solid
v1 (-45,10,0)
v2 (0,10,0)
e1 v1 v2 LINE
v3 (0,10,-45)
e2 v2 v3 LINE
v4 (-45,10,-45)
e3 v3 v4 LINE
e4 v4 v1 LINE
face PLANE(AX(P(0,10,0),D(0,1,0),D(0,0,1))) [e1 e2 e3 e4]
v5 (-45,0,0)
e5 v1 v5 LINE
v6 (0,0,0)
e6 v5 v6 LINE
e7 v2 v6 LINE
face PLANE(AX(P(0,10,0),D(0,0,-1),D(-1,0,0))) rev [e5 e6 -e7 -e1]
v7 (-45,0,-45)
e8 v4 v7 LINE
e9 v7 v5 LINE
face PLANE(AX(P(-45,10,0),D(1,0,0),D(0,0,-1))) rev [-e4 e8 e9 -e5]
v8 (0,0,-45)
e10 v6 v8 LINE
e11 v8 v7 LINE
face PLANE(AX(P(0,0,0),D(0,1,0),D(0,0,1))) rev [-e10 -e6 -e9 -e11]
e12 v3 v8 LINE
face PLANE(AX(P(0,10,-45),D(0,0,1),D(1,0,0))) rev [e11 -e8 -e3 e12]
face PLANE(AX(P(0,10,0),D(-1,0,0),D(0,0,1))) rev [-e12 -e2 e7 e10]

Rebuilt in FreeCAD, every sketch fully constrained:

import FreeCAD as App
import Part
import Sketcher
Q = App.Units.Quantity


def add_polygon(sketch, points):
    """Adds a closed chain of lines whose ends are joined by coincident constraints."""
    first, n = sketch.GeometryCount, len(points)
    for a, b in zip(points, points[1:] + points[:1]):
        sketch.addGeometry(Part.LineSegment(App.Vector(*a, 0), App.Vector(*b, 0)), False)
    for i in range(n):
        sketch.addConstraint(Sketcher.Constraint("Coincident", first + i, 2, first + (i + 1) % n, 1))

doc = App.newDocument("Part")
body = doc.addObject("PartDesign::Body", "Body")

# Sketch on XZ plane
sketch1 = body.newObject("Sketcher::SketchObject", "Sketch")
sketch1.AttachmentSupport = (doc.getObject("XZ_Plane"), [""])
sketch1.MapMode = "FlatFace"
add_polygon(sketch1, [(-45, -45), (-45, 0), (0, 0), (0, -45)])  # lines 0-3
sketch1.addConstraint(Sketcher.Constraint("Vertical", 0))
sketch1.addConstraint(Sketcher.Constraint("Horizontal", 1))
sketch1.addConstraint(Sketcher.Constraint("Vertical", 2))
sketch1.addConstraint(Sketcher.Constraint("Horizontal", 3))
sketch1.addConstraint(Sketcher.Constraint("Coincident", 1, 2, -1, 1))
sketch1.addConstraint(Sketcher.Constraint("Equal", 3, 0))
sketch1.addConstraint(Sketcher.Constraint("DistanceX", 1, 1, 1, 2, Q("45 mm")))
pad1 = body.newObject("PartDesign::Pad", "Pad")
pad1.Profile = sketch1
pad1.Length = 10
pad1.Reversed = True

doc.recompute()
